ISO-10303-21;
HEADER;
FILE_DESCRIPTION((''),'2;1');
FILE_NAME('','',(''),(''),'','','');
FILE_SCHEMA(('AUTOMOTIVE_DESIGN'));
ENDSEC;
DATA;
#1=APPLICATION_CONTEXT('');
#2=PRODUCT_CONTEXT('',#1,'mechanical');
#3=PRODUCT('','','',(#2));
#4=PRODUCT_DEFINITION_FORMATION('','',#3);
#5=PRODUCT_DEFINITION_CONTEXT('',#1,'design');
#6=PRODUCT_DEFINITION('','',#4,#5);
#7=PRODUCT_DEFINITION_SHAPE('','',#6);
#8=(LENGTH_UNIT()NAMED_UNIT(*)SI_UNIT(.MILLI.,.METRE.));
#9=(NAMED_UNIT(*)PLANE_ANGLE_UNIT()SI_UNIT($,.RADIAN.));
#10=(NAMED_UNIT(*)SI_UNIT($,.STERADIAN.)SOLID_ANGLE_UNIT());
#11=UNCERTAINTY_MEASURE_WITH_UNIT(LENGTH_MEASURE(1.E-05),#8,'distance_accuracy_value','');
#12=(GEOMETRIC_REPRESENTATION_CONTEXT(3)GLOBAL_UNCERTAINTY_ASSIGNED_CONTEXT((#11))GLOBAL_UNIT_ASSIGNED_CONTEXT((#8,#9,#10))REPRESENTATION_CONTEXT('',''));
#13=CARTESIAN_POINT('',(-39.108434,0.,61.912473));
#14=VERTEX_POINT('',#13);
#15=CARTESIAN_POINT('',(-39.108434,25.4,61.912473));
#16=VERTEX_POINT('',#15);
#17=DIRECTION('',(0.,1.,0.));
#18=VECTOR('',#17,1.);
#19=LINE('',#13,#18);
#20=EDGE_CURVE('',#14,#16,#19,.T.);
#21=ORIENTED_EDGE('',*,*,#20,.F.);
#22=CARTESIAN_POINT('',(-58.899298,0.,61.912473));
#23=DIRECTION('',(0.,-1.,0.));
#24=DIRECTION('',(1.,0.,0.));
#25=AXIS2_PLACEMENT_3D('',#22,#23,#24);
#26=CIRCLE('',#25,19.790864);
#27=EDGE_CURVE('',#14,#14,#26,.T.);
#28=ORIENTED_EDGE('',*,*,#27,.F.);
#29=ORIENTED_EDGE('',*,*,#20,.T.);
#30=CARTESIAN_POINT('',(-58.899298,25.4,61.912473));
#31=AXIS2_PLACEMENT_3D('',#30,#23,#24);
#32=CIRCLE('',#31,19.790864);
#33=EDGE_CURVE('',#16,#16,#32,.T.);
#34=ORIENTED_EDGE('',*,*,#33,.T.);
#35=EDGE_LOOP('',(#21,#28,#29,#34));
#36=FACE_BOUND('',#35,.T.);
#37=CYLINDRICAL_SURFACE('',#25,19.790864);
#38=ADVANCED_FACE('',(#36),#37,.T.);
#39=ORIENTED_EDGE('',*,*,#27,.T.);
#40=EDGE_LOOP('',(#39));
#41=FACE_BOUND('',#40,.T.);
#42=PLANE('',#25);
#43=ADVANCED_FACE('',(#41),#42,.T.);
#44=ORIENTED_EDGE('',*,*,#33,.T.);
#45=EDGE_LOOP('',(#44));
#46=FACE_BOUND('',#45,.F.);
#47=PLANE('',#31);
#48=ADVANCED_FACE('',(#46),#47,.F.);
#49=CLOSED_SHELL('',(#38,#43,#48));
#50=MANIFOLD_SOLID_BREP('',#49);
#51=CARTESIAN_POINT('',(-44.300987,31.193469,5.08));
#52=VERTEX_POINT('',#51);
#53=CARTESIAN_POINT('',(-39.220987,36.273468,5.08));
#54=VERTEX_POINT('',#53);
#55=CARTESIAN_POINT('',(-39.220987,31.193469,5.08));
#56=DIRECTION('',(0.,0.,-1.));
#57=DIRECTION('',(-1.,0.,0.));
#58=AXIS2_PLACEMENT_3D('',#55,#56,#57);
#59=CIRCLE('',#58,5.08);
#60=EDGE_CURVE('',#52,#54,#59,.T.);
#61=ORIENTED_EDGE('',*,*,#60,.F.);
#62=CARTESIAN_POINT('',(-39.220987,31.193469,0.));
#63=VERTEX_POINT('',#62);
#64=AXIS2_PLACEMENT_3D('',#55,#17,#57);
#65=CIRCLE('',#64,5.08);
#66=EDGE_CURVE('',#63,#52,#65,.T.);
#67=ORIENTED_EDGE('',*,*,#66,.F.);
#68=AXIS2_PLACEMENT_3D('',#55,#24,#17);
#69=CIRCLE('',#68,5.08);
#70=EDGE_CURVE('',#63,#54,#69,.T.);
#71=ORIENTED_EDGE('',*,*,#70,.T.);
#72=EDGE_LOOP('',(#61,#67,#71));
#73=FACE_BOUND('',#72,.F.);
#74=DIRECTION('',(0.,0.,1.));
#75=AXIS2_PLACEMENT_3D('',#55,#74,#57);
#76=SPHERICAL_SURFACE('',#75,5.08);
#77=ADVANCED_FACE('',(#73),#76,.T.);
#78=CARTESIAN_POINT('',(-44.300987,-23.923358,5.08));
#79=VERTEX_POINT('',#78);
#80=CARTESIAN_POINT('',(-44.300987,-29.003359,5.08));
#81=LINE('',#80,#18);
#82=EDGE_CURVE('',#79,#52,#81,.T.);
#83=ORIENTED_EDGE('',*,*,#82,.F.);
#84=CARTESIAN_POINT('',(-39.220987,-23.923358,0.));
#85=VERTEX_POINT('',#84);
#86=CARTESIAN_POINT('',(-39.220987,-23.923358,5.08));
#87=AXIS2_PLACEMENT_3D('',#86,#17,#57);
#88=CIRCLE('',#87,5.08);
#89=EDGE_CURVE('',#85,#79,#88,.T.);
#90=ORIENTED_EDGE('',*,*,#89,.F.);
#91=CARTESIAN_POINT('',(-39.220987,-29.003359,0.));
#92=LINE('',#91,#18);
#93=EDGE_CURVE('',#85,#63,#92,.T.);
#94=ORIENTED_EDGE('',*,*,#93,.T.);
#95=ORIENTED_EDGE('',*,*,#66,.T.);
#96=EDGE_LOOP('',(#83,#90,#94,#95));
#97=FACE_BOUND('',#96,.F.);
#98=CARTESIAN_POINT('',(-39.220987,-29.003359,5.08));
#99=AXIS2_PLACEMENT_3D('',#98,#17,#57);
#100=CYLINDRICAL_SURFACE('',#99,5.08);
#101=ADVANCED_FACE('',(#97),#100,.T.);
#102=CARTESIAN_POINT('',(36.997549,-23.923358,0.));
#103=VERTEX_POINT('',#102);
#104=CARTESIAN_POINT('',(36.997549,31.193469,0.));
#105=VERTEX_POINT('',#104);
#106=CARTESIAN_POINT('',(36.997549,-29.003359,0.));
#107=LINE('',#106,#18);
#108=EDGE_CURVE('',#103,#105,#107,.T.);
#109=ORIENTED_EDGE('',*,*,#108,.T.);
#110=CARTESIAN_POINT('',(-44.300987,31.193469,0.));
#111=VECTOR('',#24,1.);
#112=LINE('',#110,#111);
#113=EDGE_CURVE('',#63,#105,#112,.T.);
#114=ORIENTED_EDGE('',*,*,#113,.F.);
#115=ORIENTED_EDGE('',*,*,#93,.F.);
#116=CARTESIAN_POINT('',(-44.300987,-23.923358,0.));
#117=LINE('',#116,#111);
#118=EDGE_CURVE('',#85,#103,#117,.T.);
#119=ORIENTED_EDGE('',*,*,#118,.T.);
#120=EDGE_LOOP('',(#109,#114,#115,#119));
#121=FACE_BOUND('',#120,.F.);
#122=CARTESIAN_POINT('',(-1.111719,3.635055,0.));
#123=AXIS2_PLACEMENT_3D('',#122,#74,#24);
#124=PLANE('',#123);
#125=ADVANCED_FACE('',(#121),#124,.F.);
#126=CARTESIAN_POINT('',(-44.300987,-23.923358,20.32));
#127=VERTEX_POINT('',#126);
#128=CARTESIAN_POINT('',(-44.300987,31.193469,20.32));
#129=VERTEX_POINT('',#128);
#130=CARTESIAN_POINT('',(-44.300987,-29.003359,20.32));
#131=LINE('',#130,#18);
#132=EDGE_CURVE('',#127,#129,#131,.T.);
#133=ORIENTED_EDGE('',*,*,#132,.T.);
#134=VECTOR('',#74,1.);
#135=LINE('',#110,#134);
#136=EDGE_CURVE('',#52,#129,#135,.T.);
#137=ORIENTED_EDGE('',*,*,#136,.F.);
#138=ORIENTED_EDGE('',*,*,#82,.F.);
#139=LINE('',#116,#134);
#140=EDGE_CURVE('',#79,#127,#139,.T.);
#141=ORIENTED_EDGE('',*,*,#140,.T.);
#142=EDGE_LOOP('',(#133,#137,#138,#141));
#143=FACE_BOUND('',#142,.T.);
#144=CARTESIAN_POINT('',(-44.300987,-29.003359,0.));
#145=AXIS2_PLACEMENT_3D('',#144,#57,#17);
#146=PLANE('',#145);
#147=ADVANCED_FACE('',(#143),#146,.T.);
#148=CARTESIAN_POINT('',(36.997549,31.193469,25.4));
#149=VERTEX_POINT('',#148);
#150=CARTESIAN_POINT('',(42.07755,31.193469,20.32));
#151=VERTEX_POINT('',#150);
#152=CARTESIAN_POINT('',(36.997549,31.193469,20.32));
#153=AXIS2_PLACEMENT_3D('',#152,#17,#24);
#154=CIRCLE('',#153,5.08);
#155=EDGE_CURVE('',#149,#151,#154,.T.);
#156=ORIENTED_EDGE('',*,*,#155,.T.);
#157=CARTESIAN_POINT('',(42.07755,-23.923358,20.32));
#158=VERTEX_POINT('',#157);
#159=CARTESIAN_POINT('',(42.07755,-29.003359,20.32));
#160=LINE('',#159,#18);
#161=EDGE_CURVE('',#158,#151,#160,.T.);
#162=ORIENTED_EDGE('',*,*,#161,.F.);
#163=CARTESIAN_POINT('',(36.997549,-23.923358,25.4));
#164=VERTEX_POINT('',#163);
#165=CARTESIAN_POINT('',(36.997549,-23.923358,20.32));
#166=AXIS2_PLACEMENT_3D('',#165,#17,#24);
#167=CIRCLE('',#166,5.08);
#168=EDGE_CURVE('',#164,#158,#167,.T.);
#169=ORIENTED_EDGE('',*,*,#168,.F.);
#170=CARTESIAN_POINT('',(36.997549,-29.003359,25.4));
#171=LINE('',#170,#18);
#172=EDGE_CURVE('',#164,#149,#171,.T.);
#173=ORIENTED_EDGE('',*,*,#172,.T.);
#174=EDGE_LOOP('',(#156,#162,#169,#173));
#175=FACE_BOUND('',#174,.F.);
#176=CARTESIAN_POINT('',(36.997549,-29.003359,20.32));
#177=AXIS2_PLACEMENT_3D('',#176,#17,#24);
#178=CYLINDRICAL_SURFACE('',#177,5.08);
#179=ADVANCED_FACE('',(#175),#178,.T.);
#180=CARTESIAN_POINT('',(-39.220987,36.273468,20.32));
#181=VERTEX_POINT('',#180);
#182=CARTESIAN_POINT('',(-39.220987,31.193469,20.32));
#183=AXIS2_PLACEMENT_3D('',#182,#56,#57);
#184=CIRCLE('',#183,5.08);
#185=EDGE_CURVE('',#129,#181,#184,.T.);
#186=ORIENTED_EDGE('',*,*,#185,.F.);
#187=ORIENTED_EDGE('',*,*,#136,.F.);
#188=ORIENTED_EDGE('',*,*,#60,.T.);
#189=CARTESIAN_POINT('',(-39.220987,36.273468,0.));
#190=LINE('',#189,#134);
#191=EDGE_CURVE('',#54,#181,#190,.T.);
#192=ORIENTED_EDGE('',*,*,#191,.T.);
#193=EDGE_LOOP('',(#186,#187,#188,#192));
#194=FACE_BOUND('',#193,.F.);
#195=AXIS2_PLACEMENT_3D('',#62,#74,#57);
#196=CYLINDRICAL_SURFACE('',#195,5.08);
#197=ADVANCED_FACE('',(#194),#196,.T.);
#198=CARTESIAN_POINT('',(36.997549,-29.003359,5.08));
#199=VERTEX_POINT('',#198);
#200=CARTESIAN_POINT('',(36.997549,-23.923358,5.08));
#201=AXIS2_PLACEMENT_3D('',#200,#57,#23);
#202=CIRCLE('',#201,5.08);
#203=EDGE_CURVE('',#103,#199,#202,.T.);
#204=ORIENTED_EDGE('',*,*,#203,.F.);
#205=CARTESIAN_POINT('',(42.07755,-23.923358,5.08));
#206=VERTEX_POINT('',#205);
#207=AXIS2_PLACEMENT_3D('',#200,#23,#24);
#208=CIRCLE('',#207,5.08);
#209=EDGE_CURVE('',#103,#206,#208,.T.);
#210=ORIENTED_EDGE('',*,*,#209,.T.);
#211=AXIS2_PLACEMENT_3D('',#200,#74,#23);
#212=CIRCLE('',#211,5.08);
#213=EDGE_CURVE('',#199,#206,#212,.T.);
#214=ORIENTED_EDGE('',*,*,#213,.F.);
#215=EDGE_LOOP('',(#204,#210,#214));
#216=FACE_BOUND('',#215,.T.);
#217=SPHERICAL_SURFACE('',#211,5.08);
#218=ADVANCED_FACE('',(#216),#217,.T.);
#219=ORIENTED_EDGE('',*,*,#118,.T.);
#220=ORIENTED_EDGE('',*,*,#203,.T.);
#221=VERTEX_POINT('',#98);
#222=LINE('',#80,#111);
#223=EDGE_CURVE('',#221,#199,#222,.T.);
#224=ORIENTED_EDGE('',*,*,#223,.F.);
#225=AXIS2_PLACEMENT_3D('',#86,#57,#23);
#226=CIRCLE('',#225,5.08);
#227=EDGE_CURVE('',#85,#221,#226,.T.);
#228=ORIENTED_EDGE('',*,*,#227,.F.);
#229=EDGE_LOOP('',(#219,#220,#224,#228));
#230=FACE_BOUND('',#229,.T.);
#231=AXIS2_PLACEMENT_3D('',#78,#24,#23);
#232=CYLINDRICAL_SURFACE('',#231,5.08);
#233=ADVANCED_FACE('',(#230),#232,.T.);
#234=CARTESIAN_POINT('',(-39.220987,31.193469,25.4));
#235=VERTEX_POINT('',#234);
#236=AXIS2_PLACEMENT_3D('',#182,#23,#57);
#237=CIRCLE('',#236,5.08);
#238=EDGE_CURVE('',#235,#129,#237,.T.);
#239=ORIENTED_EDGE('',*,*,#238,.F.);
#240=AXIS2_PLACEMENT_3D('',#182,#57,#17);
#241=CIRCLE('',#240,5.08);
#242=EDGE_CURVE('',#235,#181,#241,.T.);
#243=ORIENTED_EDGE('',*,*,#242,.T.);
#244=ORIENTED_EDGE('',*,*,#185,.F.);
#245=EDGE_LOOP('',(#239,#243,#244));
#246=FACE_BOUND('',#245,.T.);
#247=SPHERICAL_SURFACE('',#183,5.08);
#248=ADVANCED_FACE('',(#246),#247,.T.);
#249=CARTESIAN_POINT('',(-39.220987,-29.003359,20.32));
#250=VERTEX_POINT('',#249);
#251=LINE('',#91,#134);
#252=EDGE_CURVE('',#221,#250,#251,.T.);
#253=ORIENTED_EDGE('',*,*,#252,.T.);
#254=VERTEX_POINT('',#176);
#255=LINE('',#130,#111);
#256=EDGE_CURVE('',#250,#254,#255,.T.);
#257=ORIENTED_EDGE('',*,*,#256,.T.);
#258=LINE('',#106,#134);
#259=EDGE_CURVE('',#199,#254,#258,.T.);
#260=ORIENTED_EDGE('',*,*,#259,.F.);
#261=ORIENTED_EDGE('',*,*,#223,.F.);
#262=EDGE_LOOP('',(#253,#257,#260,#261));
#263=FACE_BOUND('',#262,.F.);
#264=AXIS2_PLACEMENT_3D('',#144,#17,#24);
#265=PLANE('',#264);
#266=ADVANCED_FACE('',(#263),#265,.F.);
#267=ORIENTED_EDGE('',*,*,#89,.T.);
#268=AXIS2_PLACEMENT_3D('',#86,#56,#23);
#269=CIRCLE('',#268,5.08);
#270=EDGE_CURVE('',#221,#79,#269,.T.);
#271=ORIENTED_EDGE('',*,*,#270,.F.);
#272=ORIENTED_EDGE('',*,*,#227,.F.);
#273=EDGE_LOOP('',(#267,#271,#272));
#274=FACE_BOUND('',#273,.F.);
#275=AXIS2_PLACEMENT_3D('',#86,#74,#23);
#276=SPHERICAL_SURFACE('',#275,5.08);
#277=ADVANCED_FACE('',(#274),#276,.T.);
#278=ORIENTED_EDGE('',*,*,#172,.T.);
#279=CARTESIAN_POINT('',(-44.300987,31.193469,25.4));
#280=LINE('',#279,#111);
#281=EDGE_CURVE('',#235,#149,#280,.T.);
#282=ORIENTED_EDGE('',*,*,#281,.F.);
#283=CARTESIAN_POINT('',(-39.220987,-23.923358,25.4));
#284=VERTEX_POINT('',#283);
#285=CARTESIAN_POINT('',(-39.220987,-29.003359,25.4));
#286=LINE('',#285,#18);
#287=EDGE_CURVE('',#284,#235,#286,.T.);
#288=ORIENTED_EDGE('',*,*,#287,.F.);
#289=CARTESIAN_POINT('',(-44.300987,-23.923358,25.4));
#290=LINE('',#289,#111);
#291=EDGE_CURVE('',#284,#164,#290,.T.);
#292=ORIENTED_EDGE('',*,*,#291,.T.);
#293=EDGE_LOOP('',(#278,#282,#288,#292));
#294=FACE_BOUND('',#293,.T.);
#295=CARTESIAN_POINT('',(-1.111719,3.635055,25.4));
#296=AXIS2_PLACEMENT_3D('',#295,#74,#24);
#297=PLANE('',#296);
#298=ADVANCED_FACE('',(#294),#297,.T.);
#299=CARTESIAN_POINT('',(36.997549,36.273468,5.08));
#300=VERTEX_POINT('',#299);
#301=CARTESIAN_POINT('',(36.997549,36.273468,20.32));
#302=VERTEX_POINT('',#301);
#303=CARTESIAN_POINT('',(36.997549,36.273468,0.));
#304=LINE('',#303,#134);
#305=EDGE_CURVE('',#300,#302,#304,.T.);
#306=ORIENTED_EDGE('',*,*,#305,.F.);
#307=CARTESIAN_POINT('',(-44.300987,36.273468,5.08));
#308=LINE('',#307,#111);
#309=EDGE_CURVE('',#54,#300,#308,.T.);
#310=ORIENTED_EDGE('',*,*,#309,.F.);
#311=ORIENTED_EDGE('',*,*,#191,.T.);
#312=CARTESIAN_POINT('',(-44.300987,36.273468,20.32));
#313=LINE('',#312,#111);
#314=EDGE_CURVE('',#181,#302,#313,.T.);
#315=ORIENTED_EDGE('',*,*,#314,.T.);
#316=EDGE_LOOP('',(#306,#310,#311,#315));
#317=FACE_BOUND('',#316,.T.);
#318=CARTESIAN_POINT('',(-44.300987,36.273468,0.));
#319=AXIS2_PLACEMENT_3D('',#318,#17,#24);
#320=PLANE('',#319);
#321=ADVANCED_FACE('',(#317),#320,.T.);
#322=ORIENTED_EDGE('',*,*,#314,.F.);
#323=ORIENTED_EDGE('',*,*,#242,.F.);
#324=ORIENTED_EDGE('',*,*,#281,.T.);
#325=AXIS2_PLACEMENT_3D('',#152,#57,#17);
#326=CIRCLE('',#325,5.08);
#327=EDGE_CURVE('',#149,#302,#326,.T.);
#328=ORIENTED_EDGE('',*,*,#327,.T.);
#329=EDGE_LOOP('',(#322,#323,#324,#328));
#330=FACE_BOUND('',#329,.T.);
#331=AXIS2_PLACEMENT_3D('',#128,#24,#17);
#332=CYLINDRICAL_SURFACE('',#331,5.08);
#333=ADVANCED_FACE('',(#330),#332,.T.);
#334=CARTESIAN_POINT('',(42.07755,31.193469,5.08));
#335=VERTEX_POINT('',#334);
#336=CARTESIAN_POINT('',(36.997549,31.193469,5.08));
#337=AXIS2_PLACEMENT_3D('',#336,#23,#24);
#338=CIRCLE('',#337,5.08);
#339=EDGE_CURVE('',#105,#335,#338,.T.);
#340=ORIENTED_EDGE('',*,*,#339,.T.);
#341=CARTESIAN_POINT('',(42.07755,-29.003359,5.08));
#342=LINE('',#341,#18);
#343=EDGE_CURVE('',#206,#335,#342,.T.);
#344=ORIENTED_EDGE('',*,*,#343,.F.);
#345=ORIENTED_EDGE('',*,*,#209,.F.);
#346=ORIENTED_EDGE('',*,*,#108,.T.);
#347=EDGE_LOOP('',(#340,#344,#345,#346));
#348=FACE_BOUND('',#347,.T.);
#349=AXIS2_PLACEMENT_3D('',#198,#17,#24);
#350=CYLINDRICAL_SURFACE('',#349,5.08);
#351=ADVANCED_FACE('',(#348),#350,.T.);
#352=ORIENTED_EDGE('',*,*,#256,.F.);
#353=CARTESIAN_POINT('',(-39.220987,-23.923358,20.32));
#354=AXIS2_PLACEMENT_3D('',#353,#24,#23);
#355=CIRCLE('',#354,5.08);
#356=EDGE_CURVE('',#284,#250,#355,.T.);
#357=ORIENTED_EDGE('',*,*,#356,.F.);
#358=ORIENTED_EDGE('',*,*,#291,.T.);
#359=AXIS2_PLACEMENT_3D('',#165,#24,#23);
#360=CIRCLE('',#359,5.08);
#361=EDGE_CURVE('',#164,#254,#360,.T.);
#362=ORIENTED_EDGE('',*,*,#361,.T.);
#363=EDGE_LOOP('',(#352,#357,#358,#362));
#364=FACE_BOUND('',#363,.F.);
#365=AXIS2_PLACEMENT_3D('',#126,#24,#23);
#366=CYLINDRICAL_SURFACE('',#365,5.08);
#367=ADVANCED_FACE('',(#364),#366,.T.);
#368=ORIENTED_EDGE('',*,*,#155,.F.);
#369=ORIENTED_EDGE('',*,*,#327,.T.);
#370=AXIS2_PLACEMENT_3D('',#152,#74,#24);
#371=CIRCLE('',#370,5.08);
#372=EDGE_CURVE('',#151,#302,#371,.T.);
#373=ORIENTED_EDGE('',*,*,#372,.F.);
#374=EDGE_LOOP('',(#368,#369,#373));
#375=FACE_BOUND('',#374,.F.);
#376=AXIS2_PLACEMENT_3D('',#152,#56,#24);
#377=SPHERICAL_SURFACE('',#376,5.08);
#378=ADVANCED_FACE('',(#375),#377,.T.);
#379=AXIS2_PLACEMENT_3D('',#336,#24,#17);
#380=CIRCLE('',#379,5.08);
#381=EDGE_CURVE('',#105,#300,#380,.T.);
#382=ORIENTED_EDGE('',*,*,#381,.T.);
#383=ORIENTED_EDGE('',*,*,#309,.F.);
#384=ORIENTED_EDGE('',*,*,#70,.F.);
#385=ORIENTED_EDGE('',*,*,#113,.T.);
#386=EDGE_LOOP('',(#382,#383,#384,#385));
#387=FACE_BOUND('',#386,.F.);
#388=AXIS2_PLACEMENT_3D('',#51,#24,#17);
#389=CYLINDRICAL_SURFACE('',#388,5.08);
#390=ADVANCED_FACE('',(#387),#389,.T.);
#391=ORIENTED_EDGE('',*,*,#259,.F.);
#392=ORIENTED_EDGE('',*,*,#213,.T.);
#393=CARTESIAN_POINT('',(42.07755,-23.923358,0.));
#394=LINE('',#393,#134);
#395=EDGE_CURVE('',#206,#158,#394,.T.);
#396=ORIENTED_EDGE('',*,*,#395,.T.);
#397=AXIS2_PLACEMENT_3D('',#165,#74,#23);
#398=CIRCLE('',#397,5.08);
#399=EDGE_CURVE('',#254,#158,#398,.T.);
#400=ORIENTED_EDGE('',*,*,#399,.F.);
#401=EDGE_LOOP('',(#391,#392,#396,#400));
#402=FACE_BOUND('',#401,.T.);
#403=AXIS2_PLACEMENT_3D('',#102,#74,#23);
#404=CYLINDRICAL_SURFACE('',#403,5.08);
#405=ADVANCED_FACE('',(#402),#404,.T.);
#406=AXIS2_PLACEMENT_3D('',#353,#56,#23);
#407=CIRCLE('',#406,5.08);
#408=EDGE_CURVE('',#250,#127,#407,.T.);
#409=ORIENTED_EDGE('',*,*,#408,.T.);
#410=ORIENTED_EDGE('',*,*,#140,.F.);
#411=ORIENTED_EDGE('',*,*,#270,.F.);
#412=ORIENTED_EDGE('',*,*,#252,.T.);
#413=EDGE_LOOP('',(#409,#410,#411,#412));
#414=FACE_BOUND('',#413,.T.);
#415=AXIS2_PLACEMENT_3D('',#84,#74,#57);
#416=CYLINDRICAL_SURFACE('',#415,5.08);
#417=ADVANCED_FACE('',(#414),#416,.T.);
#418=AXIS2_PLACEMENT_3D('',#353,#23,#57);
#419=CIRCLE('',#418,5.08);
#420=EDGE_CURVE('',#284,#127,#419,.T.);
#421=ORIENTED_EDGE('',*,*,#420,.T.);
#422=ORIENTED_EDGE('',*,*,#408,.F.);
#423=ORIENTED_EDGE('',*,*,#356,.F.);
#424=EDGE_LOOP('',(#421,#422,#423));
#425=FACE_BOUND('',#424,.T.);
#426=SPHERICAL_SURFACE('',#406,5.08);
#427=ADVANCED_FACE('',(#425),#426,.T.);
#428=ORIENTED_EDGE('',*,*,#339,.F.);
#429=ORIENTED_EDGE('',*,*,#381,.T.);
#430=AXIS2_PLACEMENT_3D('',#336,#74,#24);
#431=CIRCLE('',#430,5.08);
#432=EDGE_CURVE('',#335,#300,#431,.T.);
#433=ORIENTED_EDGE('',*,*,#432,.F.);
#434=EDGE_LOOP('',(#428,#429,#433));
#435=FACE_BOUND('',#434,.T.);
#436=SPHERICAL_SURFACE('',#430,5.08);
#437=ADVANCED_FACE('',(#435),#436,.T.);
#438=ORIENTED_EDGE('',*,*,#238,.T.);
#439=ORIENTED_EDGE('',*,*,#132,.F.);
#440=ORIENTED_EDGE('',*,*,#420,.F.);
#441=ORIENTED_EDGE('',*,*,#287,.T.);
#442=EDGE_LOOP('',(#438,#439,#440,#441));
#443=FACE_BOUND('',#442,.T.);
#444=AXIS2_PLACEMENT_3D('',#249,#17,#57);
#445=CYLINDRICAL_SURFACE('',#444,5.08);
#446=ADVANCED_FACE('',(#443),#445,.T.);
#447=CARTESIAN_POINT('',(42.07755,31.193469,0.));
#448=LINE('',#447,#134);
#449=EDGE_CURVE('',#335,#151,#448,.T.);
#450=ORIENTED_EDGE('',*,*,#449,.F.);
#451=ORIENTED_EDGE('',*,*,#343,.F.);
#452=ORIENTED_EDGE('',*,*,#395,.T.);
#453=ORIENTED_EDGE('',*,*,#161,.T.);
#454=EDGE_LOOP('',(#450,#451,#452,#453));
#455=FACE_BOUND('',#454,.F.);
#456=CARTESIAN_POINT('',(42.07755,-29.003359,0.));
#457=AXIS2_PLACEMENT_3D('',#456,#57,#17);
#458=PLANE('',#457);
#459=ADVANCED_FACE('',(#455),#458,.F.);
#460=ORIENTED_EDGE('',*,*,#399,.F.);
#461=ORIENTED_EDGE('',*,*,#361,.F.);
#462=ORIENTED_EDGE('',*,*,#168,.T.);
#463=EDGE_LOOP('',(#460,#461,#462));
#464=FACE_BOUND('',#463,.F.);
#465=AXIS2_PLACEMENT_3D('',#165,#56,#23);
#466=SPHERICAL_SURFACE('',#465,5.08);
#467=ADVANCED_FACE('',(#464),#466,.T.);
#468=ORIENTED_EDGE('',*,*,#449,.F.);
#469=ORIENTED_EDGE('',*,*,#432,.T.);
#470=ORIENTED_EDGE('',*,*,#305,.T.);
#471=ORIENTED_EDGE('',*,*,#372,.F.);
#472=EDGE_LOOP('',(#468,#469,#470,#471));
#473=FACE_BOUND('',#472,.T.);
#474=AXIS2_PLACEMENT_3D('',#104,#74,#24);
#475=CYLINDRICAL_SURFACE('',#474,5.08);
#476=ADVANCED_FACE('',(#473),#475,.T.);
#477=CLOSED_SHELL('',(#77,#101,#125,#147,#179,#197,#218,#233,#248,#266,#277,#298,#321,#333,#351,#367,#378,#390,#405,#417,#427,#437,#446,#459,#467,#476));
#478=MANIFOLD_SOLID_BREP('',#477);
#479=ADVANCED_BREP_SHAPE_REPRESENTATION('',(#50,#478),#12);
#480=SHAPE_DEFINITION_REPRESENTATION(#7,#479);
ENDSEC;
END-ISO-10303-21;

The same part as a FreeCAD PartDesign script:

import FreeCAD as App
import Part
import Sketcher
from FreeCAD import Vector
Q = App.Units.Quantity


def add_polygon(sketch, points):
    """Adds a closed chain of lines whose ends are joined by coincident constraints."""
    first, n = sketch.GeometryCount, len(points)
    for a, b in zip(points, points[1:] + points[:1]):
        sketch.addGeometry(Part.LineSegment(App.Vector(*a, 0), App.Vector(*b, 0)), False)
    for i in range(n):
        sketch.addConstraint(Sketcher.Constraint("Coincident", first + i, 2, first + (i + 1) % n, 1))

doc = App.newDocument("Part")
body = doc.addObject("PartDesign::Body", "Body")

sketch1 = doc.addObject("Sketcher::SketchObject", "Sketch")
body.addObject(sketch1)
sketch1.AttachmentSupport = (doc.XY_Plane, [""])
sketch1.MapMode = "FlatFace"
add_polygon(sketch1, [(-44, 36), (-44, -29), (42, -29), (42, 36)])
sketch1.addConstraint([
    Sketcher.Constraint("Vertical", 0),
    Sketcher.Constraint("Horizontal", 1),
    Sketcher.Constraint("Vertical", 2),
    Sketcher.Constraint("Horizontal", 3),
    Sketcher.Constraint("DistanceX", 1, 1, 1, 2, Q("86.378537 mm")),
    Sketcher.Constraint("DistanceY", 0, 2, 0, 1, Q("65.276827 mm")),
    Sketcher.Constraint("DistanceY", 0, 2, -1, 1, Q("29.003359 mm")),
    Sketcher.Constraint("DistanceX", -1, 1, 1, 2, Q("42.07755 mm")),
])
pad1 = doc.addObject("PartDesign::Pad", "Pad")
body.addObject(pad1)
pad1.Profile = sketch1
pad1.Length = Q("1 in")
doc.recompute()

fillet = doc.addObject("PartDesign::Fillet", "Fillet")
body.addObject(fillet)
fillet.Base = (pad1, ["Edge1"])
fillet.UseAllEdges = True
fillet.Radius = Q("0.2 in")
body2 = doc.addObject("PartDesign::Body", "Body001")

sketch2 = doc.addObject("Sketcher::SketchObject", "Sketch001")
body2.addObject(sketch2)
sketch2.AttachmentSupport = (doc.getObject("XZ_Plane001"), [""])
sketch2.MapMode = "FlatFace"
sketch2.addGeometry(Part.Circle(Vector(-59, 62, 0), Vector(0, 0, 1), 20), False)
sketch2.addConstraint([
    Sketcher.Constraint("Diameter", 0, Q("39.581728 mm")),
    Sketcher.Constraint("DistanceX", 0, 3, -1, 1, Q("58.899298 mm")),
    Sketcher.Constraint("DistanceY", -1, 1, 0, 3, Q("61.912473 mm")),
])
pad2 = doc.addObject("PartDesign::Pad", "Pad001")
body2.addObject(pad2)
pad2.Profile = sketch2
pad2.Length = Q("1 in")
pad2.Reversed = True

doc.recompute()
